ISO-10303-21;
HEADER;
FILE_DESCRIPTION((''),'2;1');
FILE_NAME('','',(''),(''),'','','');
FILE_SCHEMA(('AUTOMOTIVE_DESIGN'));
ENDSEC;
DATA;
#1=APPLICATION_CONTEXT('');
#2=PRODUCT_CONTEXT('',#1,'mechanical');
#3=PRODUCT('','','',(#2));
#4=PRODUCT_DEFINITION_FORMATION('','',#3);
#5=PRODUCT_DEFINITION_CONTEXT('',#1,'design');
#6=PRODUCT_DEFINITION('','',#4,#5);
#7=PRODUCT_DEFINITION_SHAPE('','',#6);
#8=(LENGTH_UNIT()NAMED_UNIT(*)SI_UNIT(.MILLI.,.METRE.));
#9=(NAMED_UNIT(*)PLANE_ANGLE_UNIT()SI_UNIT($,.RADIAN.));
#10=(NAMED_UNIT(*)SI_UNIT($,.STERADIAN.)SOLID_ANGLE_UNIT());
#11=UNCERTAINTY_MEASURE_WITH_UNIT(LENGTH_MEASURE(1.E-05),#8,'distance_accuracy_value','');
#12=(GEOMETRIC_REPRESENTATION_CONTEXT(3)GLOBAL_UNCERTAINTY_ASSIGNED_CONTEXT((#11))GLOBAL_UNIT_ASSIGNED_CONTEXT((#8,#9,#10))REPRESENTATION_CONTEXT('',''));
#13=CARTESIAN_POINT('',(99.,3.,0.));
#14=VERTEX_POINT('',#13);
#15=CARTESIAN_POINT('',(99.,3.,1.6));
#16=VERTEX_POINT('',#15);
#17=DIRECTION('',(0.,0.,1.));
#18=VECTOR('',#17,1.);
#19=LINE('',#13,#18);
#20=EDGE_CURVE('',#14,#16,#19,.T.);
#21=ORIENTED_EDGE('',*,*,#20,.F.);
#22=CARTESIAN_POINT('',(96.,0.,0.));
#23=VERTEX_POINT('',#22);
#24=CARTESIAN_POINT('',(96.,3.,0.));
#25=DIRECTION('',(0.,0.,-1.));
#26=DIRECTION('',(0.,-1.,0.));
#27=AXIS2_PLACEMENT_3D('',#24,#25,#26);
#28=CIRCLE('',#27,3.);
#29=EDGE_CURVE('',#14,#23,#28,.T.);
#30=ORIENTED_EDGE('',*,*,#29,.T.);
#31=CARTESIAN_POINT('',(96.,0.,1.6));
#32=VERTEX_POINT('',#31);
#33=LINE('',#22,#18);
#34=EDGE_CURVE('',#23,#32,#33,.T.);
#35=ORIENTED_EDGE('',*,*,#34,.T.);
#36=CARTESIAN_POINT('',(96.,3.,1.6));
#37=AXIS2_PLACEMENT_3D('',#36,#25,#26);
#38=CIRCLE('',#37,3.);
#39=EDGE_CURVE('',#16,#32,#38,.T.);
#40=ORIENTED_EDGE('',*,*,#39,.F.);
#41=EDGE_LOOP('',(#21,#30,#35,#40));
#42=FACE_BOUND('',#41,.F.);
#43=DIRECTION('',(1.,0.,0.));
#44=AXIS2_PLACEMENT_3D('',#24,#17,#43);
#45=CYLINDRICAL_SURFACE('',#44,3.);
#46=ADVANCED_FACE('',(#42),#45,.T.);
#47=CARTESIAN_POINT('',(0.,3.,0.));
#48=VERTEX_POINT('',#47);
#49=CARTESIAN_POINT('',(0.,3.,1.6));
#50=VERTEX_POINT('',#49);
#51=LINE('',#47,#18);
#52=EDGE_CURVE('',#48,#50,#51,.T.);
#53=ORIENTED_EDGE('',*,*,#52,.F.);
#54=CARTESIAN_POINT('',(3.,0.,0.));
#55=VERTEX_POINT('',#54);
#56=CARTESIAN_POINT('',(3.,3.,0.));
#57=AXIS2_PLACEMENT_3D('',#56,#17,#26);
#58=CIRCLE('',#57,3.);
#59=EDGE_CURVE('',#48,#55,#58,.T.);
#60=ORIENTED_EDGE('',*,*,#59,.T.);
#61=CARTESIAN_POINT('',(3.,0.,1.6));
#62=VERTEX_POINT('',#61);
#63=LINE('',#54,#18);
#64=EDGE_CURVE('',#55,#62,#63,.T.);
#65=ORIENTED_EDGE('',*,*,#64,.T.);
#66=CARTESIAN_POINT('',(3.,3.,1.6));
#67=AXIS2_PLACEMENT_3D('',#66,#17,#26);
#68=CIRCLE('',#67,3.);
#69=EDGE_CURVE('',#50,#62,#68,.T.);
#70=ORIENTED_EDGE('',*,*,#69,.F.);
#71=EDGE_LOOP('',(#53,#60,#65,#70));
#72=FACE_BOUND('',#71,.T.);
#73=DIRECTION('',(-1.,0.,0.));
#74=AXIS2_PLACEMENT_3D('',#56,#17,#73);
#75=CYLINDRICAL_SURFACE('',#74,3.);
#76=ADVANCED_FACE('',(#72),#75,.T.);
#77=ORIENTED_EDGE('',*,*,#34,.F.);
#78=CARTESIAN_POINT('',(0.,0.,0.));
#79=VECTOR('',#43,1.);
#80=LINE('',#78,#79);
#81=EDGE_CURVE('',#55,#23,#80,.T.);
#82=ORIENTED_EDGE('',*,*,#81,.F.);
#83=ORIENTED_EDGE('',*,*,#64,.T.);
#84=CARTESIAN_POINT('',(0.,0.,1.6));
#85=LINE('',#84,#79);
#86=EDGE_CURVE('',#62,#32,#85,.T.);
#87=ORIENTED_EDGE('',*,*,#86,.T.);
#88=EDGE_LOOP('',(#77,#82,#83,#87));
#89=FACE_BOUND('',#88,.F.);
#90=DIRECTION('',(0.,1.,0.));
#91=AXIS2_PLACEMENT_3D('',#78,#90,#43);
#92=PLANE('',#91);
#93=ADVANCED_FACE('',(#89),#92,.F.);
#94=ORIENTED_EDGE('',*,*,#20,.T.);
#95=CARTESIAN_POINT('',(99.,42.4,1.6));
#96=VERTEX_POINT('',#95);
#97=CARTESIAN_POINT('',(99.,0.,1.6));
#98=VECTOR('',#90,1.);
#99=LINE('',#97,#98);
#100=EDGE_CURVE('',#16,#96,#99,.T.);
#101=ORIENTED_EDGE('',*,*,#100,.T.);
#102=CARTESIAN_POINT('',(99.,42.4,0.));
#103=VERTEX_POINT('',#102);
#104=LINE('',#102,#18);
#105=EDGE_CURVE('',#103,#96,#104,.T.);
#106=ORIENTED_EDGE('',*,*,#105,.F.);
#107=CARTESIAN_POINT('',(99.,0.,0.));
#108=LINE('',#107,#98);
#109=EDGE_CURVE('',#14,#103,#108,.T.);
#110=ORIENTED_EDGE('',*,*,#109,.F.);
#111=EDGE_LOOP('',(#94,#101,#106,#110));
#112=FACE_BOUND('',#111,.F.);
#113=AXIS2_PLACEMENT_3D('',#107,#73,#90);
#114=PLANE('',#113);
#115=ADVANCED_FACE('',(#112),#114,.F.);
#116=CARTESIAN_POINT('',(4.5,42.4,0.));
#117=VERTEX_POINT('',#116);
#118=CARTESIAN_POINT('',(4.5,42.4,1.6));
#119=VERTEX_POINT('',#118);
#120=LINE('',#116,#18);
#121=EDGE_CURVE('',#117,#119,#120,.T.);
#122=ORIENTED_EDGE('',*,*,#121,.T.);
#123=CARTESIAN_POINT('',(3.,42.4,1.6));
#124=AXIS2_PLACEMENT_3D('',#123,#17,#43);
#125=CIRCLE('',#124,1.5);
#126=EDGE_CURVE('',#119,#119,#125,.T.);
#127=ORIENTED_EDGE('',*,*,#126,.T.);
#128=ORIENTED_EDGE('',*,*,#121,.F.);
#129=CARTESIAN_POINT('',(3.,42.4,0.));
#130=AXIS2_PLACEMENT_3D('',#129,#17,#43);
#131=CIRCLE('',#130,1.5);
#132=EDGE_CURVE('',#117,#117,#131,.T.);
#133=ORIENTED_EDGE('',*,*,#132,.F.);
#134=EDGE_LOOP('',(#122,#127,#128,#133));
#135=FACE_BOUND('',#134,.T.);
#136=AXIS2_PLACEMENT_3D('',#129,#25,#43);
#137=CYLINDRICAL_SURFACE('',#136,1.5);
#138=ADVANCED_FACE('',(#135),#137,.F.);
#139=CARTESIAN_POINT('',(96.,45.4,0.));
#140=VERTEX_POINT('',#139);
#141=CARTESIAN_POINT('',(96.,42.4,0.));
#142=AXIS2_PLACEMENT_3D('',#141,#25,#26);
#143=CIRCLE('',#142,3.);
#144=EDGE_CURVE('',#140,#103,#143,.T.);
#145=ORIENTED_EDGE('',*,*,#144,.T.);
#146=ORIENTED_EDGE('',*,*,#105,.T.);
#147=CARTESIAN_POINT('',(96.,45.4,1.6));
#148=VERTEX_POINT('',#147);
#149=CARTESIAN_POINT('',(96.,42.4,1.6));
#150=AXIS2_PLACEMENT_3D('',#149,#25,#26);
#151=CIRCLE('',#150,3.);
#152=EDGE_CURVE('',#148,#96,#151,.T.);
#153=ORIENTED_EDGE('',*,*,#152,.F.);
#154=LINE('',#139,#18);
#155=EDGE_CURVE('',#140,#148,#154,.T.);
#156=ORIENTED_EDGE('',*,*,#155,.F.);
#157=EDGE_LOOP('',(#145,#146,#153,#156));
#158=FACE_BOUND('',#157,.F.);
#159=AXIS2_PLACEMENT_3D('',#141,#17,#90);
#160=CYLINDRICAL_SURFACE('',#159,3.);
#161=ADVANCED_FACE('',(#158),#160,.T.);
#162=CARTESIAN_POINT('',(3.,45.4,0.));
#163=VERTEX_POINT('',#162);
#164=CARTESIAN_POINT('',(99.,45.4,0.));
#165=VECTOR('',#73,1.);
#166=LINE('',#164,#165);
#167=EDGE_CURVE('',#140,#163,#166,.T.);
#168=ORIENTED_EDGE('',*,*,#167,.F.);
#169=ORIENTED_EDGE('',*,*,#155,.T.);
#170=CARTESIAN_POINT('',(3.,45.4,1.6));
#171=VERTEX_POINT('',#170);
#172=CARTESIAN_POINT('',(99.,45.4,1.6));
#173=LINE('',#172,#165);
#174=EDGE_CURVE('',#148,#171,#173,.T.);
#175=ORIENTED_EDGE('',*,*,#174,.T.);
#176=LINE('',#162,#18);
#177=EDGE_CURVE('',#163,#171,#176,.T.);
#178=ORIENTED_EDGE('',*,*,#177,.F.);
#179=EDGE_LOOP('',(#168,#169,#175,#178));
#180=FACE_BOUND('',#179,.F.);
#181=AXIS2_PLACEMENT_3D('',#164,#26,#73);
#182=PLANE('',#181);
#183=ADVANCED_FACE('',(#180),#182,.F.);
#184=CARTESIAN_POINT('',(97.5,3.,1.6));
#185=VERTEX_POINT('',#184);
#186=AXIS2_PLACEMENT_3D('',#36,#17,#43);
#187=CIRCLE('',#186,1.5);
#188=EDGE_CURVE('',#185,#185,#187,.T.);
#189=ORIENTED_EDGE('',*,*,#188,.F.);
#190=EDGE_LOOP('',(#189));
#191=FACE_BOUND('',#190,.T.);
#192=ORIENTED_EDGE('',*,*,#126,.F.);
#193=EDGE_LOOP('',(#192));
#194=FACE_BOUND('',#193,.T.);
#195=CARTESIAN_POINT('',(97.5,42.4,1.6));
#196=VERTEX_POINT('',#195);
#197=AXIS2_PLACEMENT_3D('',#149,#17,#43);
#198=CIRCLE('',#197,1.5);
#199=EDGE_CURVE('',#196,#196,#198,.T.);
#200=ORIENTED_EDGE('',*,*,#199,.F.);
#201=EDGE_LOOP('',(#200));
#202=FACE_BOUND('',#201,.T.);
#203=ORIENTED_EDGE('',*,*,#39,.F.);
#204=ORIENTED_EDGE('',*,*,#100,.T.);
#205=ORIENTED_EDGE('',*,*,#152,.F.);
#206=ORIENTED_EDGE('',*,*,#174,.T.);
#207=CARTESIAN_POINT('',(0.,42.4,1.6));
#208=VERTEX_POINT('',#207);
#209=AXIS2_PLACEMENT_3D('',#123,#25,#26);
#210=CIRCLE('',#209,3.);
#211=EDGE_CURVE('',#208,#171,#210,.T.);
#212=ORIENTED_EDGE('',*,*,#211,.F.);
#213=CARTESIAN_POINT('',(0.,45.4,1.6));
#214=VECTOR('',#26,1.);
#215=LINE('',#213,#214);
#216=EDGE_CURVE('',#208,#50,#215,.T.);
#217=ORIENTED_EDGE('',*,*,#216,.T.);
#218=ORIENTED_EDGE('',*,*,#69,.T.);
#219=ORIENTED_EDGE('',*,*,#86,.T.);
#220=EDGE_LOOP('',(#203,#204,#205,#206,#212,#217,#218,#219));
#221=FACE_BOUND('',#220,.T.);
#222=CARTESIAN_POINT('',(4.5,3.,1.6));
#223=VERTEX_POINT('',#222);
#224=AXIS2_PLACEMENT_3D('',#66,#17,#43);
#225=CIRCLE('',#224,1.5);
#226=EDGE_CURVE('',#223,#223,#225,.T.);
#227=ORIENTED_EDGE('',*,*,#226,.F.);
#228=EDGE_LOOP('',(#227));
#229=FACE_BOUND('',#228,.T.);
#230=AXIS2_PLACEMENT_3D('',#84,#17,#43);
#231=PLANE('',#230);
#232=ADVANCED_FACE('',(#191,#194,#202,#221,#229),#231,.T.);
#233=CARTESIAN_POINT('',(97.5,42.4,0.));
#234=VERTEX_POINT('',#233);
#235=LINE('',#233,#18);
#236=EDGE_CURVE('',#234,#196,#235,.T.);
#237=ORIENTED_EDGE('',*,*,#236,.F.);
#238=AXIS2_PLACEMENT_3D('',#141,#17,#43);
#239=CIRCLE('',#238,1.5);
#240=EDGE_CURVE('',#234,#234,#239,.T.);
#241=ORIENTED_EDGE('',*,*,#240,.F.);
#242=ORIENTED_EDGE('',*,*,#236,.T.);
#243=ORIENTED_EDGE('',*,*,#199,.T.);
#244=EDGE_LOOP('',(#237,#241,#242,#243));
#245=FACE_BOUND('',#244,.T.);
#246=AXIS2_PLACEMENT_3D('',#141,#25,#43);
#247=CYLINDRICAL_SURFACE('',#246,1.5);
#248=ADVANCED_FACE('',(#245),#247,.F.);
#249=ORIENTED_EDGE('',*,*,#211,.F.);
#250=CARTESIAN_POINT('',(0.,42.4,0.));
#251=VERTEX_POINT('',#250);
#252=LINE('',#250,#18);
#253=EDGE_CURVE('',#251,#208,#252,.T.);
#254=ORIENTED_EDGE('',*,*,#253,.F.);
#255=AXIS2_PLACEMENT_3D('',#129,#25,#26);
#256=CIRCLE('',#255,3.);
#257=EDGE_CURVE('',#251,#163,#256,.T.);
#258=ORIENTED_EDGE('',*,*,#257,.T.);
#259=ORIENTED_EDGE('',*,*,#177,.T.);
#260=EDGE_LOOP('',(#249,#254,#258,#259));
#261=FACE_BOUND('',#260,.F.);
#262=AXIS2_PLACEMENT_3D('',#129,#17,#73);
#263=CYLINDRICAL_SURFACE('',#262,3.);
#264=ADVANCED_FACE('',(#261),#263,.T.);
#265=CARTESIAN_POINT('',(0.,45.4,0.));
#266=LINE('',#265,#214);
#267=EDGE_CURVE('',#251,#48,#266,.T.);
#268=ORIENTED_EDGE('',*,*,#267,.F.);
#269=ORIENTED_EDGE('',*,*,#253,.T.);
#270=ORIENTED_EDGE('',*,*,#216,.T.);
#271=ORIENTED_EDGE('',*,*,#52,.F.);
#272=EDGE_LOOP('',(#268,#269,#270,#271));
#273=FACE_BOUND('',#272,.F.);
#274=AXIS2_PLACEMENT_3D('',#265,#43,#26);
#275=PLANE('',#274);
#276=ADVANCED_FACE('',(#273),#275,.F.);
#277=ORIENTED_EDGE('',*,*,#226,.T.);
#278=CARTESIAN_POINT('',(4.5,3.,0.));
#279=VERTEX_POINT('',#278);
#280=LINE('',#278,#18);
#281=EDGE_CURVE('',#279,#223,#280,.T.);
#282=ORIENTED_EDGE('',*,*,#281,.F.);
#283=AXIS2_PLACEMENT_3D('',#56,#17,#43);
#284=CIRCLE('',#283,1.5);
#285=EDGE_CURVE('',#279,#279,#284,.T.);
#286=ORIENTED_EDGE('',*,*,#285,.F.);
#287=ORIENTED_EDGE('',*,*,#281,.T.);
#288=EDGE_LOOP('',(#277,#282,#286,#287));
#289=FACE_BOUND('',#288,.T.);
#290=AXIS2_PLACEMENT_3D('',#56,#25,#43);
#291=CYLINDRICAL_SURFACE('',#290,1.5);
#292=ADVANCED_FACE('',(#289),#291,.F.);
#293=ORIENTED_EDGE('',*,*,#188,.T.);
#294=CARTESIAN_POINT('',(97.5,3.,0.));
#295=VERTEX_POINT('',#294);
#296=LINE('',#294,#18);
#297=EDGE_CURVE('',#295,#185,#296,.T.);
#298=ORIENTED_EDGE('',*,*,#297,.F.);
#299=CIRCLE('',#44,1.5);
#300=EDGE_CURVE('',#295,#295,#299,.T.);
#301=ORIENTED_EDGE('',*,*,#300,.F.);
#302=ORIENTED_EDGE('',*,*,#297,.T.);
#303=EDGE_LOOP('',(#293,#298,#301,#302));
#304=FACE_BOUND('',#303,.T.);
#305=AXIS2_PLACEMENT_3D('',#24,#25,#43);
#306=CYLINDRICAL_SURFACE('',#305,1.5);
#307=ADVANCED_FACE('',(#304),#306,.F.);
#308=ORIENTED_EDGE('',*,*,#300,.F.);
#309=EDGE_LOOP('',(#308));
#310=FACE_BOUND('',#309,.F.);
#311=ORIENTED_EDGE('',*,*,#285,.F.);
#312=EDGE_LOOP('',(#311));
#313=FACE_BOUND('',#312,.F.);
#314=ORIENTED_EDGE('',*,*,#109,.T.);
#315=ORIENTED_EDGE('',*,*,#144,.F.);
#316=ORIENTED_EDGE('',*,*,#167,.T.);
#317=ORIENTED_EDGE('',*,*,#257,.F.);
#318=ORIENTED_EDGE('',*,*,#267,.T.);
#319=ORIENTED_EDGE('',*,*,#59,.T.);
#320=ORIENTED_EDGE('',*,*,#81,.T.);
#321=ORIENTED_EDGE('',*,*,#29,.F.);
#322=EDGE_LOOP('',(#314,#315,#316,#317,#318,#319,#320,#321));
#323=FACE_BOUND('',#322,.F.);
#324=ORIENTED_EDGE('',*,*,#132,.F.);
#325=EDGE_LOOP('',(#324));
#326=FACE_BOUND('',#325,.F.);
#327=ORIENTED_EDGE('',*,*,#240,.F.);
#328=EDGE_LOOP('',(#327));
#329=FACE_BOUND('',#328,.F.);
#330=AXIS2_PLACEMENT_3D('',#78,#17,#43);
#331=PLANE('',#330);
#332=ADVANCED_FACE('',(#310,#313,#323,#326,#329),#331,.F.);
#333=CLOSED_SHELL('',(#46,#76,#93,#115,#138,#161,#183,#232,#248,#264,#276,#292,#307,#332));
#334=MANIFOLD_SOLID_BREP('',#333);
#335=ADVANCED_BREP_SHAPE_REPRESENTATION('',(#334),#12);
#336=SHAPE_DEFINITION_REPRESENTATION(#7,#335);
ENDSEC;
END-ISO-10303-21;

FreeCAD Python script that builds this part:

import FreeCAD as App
import Part
import Sketcher
from FreeCAD import Vector
Q = App.Units.Quantity


def edges_at(feature, points):
    """Names of the edges that pass closest to the given points."""
    edges = feature.Shape.Edges
    near = lambda p: min(range(len(edges)), key=lambda i: edges[i].distToShape(Part.Vertex(*p))[0])
    return sorted({f"Edge{near(p) + 1}" for p in points})


def add_polygon(sketch, points):
    """Adds a closed chain of lines whose ends are joined by coincident constraints."""
    first, n = sketch.GeometryCount, len(points)
    for a, b in zip(points, points[1:] + points[:1]):
        sketch.addGeometry(Part.LineSegment(App.Vector(*a, 0), App.Vector(*b, 0)), False)
    for i in range(n):
        sketch.addConstraint(Sketcher.Constraint("Coincident", first + i, 2, first + (i + 1) % n, 1))

doc = App.newDocument("Part")
body = doc.addObject("PartDesign::Body", "Body")

# Sketch on XY plane
sketch1 = body.newObject("Sketcher::SketchObject", "Sketch")
sketch1.AttachmentSupport = (doc.getObject("XY_Plane"), [""])
sketch1.MapMode = "FlatFace"
add_polygon(sketch1, [(0, 45.4), (0, 0), (99, 0), (99, 45.4)])  # lines 0-3
sketch1.addGeometry(Part.Circle(Vector(3, 3, 0), Vector(0, 0, 1), 1.5), False)  # 4
sketch1.addGeometry(Part.Circle(Vector(96, 3, 0), Vector(0, 0, 1), 1.5), False)  # 5
sketch1.addGeometry(Part.Circle(Vector(3, 42.4, 0), Vector(0, 0, 1), 1.5), False)  # 6
sketch1.addGeometry(Part.Circle(Vector(96, 42.4, 0), Vector(0, 0, 1), 1.5), False)  # 7
sketch1.addConstraint(Sketcher.Constraint("Vertical", 0))
sketch1.addConstraint(Sketcher.Constraint("Horizontal", 1))
sketch1.addConstraint(Sketcher.Constraint("Vertical", 2))
sketch1.addConstraint(Sketcher.Constraint("Horizontal", 3))
sketch1.addConstraint(Sketcher.Constraint("Coincident", 0, 2, -1, 1))
sketch1.addConstraint(Sketcher.Constraint("Equal", 4, 5))
sketch1.addConstraint(Sketcher.Constraint("Equal", 5, 6))
sketch1.addConstraint(Sketcher.Constraint("Equal", 6, 7))
sketch1.addConstraint(Sketcher.Constraint("Horizontal", 4, 3, 5, 3))
sketch1.addConstraint(Sketcher.Constraint("Horizontal", 6, 3, 7, 3))
sketch1.addConstraint(Sketcher.Constraint("Vertical", 4, 3, 6, 3))
sketch1.addConstraint(Sketcher.Constraint("Vertical", 5, 3, 7, 3))
sketch1.addConstraint(Sketcher.Constraint("Diameter", 4, Q("3 mm")))
sketch1.addConstraint(Sketcher.Constraint("DistanceX", 1, 1, 1, 2, Q("99 mm")))
sketch1.addConstraint(Sketcher.Constraint("DistanceY", 0, 2, 0, 1, Q("45.4 mm")))
sketch1.addConstraint(Sketcher.Constraint("DistanceX", -1, 1, 4, 3, Q("3 mm")))
sketch1.addConstraint(Sketcher.Constraint("DistanceY", -1, 1, 4, 3, Q("3 mm")))
sketch1.addConstraint(Sketcher.Constraint("DistanceX", 5, 3, 1, 2, Q("3 mm")))
sketch1.addConstraint(Sketcher.Constraint("DistanceY", 7, 3, 2, 2, Q("3 mm")))
pad1 = body.newObject("PartDesign::Pad", "Pad")
pad1.Profile = sketch1
pad1.Length = 1.6
doc.recompute()

fillet = body.newObject("PartDesign::Fillet", "Fillet")
fillet.Base = (pad1, edges_at(pad1, [
    (0, 0, 0.8),
    (99, 0, 0.8),
    (99, 45.4, 0.8),
    (0, 45.4, 0.8),
]))
fillet.Radius = 3

doc.recompute()
